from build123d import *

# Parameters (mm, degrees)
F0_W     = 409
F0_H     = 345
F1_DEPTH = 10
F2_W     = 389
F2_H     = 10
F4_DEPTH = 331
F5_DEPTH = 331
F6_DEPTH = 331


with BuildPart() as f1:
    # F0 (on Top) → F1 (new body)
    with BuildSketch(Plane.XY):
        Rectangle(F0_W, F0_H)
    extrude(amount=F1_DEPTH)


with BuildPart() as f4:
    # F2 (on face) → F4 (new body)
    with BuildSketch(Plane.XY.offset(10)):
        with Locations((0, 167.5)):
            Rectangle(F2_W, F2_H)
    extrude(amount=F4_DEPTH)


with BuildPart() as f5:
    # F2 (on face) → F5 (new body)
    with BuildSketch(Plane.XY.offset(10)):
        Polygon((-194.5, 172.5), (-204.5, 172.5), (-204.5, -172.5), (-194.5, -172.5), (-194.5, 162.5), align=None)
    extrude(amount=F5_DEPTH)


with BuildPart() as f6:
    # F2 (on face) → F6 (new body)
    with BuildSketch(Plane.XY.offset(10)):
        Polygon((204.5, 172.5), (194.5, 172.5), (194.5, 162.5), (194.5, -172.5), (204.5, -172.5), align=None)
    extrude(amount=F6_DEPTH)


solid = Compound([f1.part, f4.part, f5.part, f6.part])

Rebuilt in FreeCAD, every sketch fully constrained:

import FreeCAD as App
import Part
import Sketcher
Q = App.Units.Quantity

doc = App.newDocument("Part")
params = doc.addObject("Spreadsheet::Sheet", "Params")
for row, (alias, value) in enumerate([
    ("sketch1_width", "409 mm"),
    ("sketch1_height", "345 mm"),
    ("pad1_length", "10 mm"),
    ("sketch2_width", "389 mm"),
    ("sketch2_height", "10 mm"),
    ("pad2_length", "331 mm"),
    ("sketch3_width", "10 mm"),
    ("sketch3_height", "345 mm"),
    ("pad3_length", "331 mm"),
    ("sketch4_width", "10 mm"),
    ("sketch4_height", "345 mm"),
    ("pad4_length", "331 mm"),
], start=1):
    params.set(f"A{row}", alias)
    params.set(f"B{row}", "=" + value)
    params.setAlias(f"B{row}", alias)

body = doc.addObject("PartDesign::Body", "Body")

# Sketch on XY plane
sketch1 = doc.addObject("Sketcher::SketchObject", "Sketch")
body.addObject(sketch1)
sketch1.AttachmentSupport = (doc.XY_Plane, [""])
sketch1.MapMode = "FlatFace"
sketch1.addGeometry(Part.LineSegment(App.Vector(-204, 172, 0), App.Vector(-204, -172, 0)), False)
sketch1.addGeometry(Part.LineSegment(App.Vector(-204, -172, 0), App.Vector(204, -172, 0)), False)
sketch1.addGeometry(Part.LineSegment(App.Vector(204, -172, 0), App.Vector(204, 172, 0)), False)
sketch1.addGeometry(Part.LineSegment(App.Vector(204, 172, 0), App.Vector(-204, 172, 0)), False)
sketch1.addConstraint(Sketcher.Constraint("Coincident", 0, 2, 1, 1))
sketch1.addConstraint(Sketcher.Constraint("Coincident", 1, 2, 2, 1))
sketch1.addConstraint(Sketcher.Constraint("Coincident", 2, 2, 3, 1))
sketch1.addConstraint(Sketcher.Constraint("Coincident", 3, 2, 0, 1))
sketch1.addConstraint(Sketcher.Constraint("Vertical", 0))
sketch1.addConstraint(Sketcher.Constraint("Horizontal", 1))
sketch1.addConstraint(Sketcher.Constraint("Vertical", 2))
sketch1.addConstraint(Sketcher.Constraint("Horizontal", 3))
sketch1.addConstraint(Sketcher.Constraint("Symmetric", 0, 2, 2, 2, -1, 1))
sketch1.addConstraint(Sketcher.Constraint("DistanceX", 1, 1, 1, 2, Q("409 mm")))
sketch1.addConstraint(Sketcher.Constraint("DistanceY", 0, 2, 0, 1, Q("345 mm")))
sketch1.setExpression("Constraints[9]", "Params.sketch1_width")
sketch1.setExpression("Constraints[10]", "Params.sketch1_height")
pad1 = doc.addObject("PartDesign::Pad", "Pad")
body.addObject(pad1)
pad1.Profile = sketch1
pad1.setExpression("Length", "Params.pad1_length")
body2 = doc.addObject("PartDesign::Body", "Body001")

# Sketch on XY plane
sketch2 = doc.addObject("Sketcher::SketchObject", "Sketch001")
body2.addObject(sketch2)
sketch2.AttachmentSupport = (doc.getObject("XY_Plane001"), [""])
sketch2.MapMode = "FlatFace"
sketch2.AttachmentOffset = App.Placement(App.Vector(0, 0, 10), App.Rotation())
sketch2.addGeometry(Part.LineSegment(App.Vector(-194, 172, 0), App.Vector(-194, 162, 0)), False)
sketch2.addGeometry(Part.LineSegment(App.Vector(-194, 162, 0), App.Vector(194, 162, 0)), False)
sketch2.addGeometry(Part.LineSegment(App.Vector(194, 162, 0), App.Vector(194, 172, 0)), False)
sketch2.addGeometry(Part.LineSegment(App.Vector(194, 172, 0), App.Vector(-194, 172, 0)), False)
sketch2.addConstraint(Sketcher.Constraint("Coincident", 0, 2, 1, 1))
sketch2.addConstraint(Sketcher.Constraint("Coincident", 1, 2, 2, 1))
sketch2.addConstraint(Sketcher.Constraint("Coincident", 2, 2, 3, 1))
sketch2.addConstraint(Sketcher.Constraint("Coincident", 3, 2, 0, 1))
sketch2.addConstraint(Sketcher.Constraint("Vertical", 0))
sketch2.addConstraint(Sketcher.Constraint("Horizontal", 1))
sketch2.addConstraint(Sketcher.Constraint("Vertical", 2))
sketch2.addConstraint(Sketcher.Constraint("Horizontal", 3))
sketch2.addConstraint(Sketcher.Constraint("DistanceX", 1, 1, 1, 2, Q("389 mm")))
sketch2.addConstraint(Sketcher.Constraint("DistanceY", 0, 2, 0, 1, Q("10 mm")))
sketch2.addConstraint(Sketcher.Constraint("DistanceX", 0, 2, -1, 1, Q("194.5 mm")))
sketch2.addConstraint(Sketcher.Constraint("DistanceY", -1, 1, 0, 2, Q("162.5 mm")))
sketch2.setExpression("Constraints[8]", "Params.sketch2_width")
sketch2.setExpression("Constraints[9]", "Params.sketch2_height")
pad2 = doc.addObject("PartDesign::Pad", "Pad001")
body2.addObject(pad2)
pad2.Profile = sketch2
pad2.setExpression("Length", "Params.pad2_length")
body3 = doc.addObject("PartDesign::Body", "Body002")

# Sketch on XY plane
sketch3 = doc.addObject("Sketcher::SketchObject", "Sketch002")
body3.addObject(sketch3)
sketch3.AttachmentSupport = (doc.getObject("XY_Plane002"), [""])
sketch3.MapMode = "FlatFace"
sketch3.AttachmentOffset = App.Placement(App.Vector(0, 0, 10), App.Rotation())
sketch3.addGeometry(Part.LineSegment(App.Vector(-194, 172, 0), App.Vector(-204, 172, 0)), False)
sketch3.addGeometry(Part.LineSegment(App.Vector(-204, 172, 0), App.Vector(-204, -172, 0)), False)
sketch3.addGeometry(Part.LineSegment(App.Vector(-204, -172, 0), App.Vector(-194, -172, 0)), False)
sketch3.addGeometry(Part.LineSegment(App.Vector(-194, -172, 0), App.Vector(-194, 172, 0)), False)
sketch3.addConstraint(Sketcher.Constraint("Coincident", 0, 2, 1, 1))
sketch3.addConstraint(Sketcher.Constraint("Coincident", 1, 2, 2, 1))
sketch3.addConstraint(Sketcher.Constraint("Coincident", 2, 2, 3, 1))
sketch3.addConstraint(Sketcher.Constraint("Coincident", 3, 2, 0, 1))
sketch3.addConstraint(Sketcher.Constraint("Horizontal", 0))
sketch3.addConstraint(Sketcher.Constraint("Vertical", 1))
sketch3.addConstraint(Sketcher.Constraint("Horizontal", 2))
sketch3.addConstraint(Sketcher.Constraint("Vertical", 3))
sketch3.addConstraint(Sketcher.Constraint("DistanceX", 0, 2, 0, 1, Q("10 mm")))
sketch3.addConstraint(Sketcher.Constraint("DistanceY", 1, 2, 1, 1, Q("345 mm")))
sketch3.addConstraint(Sketcher.Constraint("DistanceX", 0, 2, -1, 1, Q("204.5 mm")))
sketch3.addConstraint(Sketcher.Constraint("DistanceY", -1, 1, 0, 2, Q("172.5 mm")))
sketch3.setExpression("Constraints[8]", "Params.sketch3_width")
sketch3.setExpression("Constraints[9]", "Params.sketch3_height")
pad3 = doc.addObject("PartDesign::Pad", "Pad002")
body3.addObject(pad3)
pad3.Profile = sketch3
pad3.setExpression("Length", "Params.pad3_length")
body4 = doc.addObject("PartDesign::Body", "Body003")

# Sketch on XY plane
sketch4 = doc.addObject("Sketcher::SketchObject", "Sketch003")
body4.addObject(sketch4)
sketch4.AttachmentSupport = (doc.getObject("XY_Plane003"), [""])
sketch4.MapMode = "FlatFace"
sketch4.AttachmentOffset = App.Placement(App.Vector(0, 0, 10), App.Rotation())
sketch4.addGeometry(Part.LineSegment(App.Vector(204, 172, 0), App.Vector(194, 172, 0)), False)
sketch4.addGeometry(Part.LineSegment(App.Vector(194, 172, 0), App.Vector(194, -172, 0)), False)
sketch4.addGeometry(Part.LineSegment(App.Vector(194, -172, 0), App.Vector(204, -172, 0)), False)
sketch4.addGeometry(Part.LineSegment(App.Vector(204, -172, 0), App.Vector(204, 172, 0)), False)
sketch4.addConstraint(Sketcher.Constraint("Coincident", 0, 2, 1, 1))
sketch4.addConstraint(Sketcher.Constraint("Coincident", 1, 2, 2, 1))
sketch4.addConstraint(Sketcher.Constraint("Coincident", 2, 2, 3, 1))
sketch4.addConstraint(Sketcher.Constraint("Coincident", 3, 2, 0, 1))
sketch4.addConstraint(Sketcher.Constraint("Horizontal", 0))
sketch4.addConstraint(Sketcher.Constraint("Vertical", 1))
sketch4.addConstraint(Sketcher.Constraint("Horizontal", 2))
sketch4.addConstraint(Sketcher.Constraint("Vertical", 3))
sketch4.addConstraint(Sketcher.Constraint("DistanceX", 0, 2, 0, 1, Q("10 mm")))
sketch4.addConstraint(Sketcher.Constraint("DistanceY", 1, 2, 1, 1, Q("345 mm")))
sketch4.addConstraint(Sketcher.Constraint("DistanceX", -1, 1, 0, 2, Q("194.5 mm")))
sketch4.addConstraint(Sketcher.Constraint("DistanceY", -1, 1, 0, 2, Q("172.5 mm")))
sketch4.setExpression("Constraints[8]", "Params.sketch4_width")
sketch4.setExpression("Constraints[9]", "Params.sketch4_height")
pad4 = doc.addObject("PartDesign::Pad", "Pad003")
body4.addObject(pad4)
pad4.Profile = sketch4
pad4.setExpression("Length", "Params.pad4_length")

doc.recompute()
